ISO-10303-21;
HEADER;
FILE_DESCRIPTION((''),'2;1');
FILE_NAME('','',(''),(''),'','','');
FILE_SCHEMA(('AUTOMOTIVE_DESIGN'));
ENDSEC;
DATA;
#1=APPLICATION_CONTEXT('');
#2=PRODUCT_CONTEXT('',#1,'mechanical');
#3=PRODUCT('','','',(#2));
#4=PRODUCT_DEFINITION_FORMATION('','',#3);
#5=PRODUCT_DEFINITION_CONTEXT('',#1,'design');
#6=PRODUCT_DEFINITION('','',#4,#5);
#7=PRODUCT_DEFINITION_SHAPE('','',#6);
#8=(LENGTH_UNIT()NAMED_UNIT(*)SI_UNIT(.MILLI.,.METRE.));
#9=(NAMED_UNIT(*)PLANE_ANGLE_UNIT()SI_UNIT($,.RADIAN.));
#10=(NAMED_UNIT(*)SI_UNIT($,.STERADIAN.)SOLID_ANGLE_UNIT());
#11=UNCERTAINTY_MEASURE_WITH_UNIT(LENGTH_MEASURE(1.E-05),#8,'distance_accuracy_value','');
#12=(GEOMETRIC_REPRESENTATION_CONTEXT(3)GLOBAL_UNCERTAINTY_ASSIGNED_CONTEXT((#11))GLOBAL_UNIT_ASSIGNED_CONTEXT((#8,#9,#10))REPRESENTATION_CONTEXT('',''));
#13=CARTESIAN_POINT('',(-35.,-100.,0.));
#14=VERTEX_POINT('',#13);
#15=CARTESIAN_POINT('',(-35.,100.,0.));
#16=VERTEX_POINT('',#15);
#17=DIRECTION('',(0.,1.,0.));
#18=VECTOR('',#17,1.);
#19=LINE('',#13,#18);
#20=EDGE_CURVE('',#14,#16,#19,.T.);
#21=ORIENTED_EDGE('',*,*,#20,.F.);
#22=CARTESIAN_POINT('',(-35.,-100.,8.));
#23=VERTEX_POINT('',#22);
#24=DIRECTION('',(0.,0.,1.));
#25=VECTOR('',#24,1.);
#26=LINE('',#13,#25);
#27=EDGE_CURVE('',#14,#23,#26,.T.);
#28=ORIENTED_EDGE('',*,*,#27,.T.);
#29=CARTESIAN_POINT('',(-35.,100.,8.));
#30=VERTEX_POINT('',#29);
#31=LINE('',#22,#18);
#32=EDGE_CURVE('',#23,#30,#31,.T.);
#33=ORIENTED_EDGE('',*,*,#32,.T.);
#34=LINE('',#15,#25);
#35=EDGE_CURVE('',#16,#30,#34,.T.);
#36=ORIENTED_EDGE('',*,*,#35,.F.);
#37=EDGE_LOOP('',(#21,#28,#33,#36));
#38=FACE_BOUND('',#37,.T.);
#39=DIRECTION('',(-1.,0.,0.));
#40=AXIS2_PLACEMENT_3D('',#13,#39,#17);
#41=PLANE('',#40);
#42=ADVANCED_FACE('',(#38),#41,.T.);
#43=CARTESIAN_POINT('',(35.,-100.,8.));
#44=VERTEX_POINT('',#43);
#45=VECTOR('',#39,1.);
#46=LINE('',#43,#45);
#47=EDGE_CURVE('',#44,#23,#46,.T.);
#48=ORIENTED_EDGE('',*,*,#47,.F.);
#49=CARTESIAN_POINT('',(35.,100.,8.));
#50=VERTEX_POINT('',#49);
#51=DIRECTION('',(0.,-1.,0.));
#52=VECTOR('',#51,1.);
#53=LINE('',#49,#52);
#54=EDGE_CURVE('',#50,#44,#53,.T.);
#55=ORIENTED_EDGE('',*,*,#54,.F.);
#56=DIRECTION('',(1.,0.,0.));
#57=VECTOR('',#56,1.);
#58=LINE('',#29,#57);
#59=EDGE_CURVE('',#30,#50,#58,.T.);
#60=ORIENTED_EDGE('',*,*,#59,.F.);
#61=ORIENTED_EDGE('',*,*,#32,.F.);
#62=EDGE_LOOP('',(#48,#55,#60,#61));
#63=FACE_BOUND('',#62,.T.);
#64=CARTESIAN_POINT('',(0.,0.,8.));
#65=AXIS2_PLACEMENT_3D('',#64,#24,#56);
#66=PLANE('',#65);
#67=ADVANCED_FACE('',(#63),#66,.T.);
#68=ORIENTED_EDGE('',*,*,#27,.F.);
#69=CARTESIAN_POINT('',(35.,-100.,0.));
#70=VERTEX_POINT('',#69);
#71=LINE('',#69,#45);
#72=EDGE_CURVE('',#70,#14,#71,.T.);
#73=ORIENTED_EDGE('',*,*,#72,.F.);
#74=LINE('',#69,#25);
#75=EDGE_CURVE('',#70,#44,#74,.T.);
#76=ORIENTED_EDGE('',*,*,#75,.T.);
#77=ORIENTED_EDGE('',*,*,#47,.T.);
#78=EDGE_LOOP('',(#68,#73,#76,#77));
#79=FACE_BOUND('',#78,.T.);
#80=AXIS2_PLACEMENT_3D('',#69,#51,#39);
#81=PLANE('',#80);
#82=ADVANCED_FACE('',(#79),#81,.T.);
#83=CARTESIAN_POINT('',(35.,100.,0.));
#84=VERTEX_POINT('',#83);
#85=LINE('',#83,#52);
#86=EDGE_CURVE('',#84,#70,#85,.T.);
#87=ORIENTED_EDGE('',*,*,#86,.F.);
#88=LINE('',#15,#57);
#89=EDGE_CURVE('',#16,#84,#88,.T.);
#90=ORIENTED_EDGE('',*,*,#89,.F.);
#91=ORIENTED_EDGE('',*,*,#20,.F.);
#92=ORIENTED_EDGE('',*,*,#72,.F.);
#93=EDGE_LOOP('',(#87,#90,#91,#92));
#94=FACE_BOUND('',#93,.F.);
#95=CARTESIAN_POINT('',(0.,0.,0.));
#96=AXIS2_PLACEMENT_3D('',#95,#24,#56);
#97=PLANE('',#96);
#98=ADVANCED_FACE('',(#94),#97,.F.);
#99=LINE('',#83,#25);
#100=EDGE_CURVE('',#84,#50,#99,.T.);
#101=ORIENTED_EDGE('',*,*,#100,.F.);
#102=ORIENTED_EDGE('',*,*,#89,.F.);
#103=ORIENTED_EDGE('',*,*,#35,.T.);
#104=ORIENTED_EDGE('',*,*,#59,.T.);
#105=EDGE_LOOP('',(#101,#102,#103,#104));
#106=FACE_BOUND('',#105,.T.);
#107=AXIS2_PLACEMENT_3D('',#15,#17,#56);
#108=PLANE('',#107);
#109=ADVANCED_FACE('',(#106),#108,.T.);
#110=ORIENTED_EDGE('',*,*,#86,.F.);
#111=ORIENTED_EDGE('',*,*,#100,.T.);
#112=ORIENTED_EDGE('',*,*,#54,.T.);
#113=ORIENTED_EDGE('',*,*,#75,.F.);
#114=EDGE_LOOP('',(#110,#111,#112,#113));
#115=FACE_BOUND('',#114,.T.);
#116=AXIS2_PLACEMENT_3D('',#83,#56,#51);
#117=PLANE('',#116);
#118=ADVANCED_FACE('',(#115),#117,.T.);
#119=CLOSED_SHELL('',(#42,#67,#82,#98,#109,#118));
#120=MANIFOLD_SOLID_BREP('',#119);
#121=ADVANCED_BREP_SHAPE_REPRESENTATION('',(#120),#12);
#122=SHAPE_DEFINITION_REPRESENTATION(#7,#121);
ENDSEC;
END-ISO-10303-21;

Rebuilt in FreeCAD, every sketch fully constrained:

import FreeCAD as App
import Part
import Sketcher
from FreeCAD import Vector

doc = App.newDocument("Part")
params = doc.addObject("Spreadsheet::Sheet", "Params")
for row, (alias, value) in enumerate([
    ("sketch1_width", "70 mm"),
    ("sketch1_height", "200 mm"),
    ("pad1_length", "8 mm"),
], start=1):
    params.set(f"A{row}", alias)
    params.set(f"B{row}", "=" + value)
    params.setAlias(f"B{row}", alias)

body = doc.addObject("PartDesign::Body", "Body")

sketch1 = body.newObject("Sketcher::SketchObject", "Sketch")
sketch1.AttachmentSupport = (doc.getObject("XY_Plane"), [""])
sketch1.MapMode = "FlatFace"
sketch1.addGeometry(Part.LineSegment(Vector(35, 100, 0), Vector(-35, 100, 0)), False)
sketch1.addGeometry(Part.LineSegment(Vector(-35, 100, 0), Vector(-35, -100, 0)), False)
sketch1.addGeometry(Part.LineSegment(Vector(-35, -100, 0), Vector(35, -100, 0)), False)
sketch1.addGeometry(Part.LineSegment(Vector(35, -100, 0), Vector(35, 100, 0)), False)
sketch1.addConstraint(Sketcher.Constraint("Coincident", 0, 2, 1, 1))
sketch1.addConstraint(Sketcher.Constraint("Coincident", 1, 2, 2, 1))
sketch1.addConstraint(Sketcher.Constraint("Coincident", 2, 2, 3, 1))
sketch1.addConstraint(Sketcher.Constraint("Coincident", 3, 2, 0, 1))
sketch1.addConstraint(Sketcher.Constraint("Horizontal", 0))
sketch1.addConstraint(Sketcher.Constraint("Vertical", 1))
sketch1.addConstraint(Sketcher.Constraint("Horizontal", 2))
sketch1.addConstraint(Sketcher.Constraint("Vertical", 3))
sketch1.addConstraint(Sketcher.Constraint("Symmetric", 0, 2, 2, 2, -1, 1))
sketch1.addConstraint(Sketcher.Constraint("DistanceX", 0, 2, 0, 1, 70.0))
sketch1.addConstraint(Sketcher.Constraint("DistanceY", 1, 2, 1, 1, 200.0))
sketch1.setExpression("Constraints[9]", "Params.sketch1_width")
sketch1.setExpression("Constraints[10]", "Params.sketch1_height")
pad1 = body.newObject("PartDesign::Pad", "Pad")
pad1.Profile = sketch1
pad1.setExpression("Length", "Params.pad1_length")

doc.recompute()
